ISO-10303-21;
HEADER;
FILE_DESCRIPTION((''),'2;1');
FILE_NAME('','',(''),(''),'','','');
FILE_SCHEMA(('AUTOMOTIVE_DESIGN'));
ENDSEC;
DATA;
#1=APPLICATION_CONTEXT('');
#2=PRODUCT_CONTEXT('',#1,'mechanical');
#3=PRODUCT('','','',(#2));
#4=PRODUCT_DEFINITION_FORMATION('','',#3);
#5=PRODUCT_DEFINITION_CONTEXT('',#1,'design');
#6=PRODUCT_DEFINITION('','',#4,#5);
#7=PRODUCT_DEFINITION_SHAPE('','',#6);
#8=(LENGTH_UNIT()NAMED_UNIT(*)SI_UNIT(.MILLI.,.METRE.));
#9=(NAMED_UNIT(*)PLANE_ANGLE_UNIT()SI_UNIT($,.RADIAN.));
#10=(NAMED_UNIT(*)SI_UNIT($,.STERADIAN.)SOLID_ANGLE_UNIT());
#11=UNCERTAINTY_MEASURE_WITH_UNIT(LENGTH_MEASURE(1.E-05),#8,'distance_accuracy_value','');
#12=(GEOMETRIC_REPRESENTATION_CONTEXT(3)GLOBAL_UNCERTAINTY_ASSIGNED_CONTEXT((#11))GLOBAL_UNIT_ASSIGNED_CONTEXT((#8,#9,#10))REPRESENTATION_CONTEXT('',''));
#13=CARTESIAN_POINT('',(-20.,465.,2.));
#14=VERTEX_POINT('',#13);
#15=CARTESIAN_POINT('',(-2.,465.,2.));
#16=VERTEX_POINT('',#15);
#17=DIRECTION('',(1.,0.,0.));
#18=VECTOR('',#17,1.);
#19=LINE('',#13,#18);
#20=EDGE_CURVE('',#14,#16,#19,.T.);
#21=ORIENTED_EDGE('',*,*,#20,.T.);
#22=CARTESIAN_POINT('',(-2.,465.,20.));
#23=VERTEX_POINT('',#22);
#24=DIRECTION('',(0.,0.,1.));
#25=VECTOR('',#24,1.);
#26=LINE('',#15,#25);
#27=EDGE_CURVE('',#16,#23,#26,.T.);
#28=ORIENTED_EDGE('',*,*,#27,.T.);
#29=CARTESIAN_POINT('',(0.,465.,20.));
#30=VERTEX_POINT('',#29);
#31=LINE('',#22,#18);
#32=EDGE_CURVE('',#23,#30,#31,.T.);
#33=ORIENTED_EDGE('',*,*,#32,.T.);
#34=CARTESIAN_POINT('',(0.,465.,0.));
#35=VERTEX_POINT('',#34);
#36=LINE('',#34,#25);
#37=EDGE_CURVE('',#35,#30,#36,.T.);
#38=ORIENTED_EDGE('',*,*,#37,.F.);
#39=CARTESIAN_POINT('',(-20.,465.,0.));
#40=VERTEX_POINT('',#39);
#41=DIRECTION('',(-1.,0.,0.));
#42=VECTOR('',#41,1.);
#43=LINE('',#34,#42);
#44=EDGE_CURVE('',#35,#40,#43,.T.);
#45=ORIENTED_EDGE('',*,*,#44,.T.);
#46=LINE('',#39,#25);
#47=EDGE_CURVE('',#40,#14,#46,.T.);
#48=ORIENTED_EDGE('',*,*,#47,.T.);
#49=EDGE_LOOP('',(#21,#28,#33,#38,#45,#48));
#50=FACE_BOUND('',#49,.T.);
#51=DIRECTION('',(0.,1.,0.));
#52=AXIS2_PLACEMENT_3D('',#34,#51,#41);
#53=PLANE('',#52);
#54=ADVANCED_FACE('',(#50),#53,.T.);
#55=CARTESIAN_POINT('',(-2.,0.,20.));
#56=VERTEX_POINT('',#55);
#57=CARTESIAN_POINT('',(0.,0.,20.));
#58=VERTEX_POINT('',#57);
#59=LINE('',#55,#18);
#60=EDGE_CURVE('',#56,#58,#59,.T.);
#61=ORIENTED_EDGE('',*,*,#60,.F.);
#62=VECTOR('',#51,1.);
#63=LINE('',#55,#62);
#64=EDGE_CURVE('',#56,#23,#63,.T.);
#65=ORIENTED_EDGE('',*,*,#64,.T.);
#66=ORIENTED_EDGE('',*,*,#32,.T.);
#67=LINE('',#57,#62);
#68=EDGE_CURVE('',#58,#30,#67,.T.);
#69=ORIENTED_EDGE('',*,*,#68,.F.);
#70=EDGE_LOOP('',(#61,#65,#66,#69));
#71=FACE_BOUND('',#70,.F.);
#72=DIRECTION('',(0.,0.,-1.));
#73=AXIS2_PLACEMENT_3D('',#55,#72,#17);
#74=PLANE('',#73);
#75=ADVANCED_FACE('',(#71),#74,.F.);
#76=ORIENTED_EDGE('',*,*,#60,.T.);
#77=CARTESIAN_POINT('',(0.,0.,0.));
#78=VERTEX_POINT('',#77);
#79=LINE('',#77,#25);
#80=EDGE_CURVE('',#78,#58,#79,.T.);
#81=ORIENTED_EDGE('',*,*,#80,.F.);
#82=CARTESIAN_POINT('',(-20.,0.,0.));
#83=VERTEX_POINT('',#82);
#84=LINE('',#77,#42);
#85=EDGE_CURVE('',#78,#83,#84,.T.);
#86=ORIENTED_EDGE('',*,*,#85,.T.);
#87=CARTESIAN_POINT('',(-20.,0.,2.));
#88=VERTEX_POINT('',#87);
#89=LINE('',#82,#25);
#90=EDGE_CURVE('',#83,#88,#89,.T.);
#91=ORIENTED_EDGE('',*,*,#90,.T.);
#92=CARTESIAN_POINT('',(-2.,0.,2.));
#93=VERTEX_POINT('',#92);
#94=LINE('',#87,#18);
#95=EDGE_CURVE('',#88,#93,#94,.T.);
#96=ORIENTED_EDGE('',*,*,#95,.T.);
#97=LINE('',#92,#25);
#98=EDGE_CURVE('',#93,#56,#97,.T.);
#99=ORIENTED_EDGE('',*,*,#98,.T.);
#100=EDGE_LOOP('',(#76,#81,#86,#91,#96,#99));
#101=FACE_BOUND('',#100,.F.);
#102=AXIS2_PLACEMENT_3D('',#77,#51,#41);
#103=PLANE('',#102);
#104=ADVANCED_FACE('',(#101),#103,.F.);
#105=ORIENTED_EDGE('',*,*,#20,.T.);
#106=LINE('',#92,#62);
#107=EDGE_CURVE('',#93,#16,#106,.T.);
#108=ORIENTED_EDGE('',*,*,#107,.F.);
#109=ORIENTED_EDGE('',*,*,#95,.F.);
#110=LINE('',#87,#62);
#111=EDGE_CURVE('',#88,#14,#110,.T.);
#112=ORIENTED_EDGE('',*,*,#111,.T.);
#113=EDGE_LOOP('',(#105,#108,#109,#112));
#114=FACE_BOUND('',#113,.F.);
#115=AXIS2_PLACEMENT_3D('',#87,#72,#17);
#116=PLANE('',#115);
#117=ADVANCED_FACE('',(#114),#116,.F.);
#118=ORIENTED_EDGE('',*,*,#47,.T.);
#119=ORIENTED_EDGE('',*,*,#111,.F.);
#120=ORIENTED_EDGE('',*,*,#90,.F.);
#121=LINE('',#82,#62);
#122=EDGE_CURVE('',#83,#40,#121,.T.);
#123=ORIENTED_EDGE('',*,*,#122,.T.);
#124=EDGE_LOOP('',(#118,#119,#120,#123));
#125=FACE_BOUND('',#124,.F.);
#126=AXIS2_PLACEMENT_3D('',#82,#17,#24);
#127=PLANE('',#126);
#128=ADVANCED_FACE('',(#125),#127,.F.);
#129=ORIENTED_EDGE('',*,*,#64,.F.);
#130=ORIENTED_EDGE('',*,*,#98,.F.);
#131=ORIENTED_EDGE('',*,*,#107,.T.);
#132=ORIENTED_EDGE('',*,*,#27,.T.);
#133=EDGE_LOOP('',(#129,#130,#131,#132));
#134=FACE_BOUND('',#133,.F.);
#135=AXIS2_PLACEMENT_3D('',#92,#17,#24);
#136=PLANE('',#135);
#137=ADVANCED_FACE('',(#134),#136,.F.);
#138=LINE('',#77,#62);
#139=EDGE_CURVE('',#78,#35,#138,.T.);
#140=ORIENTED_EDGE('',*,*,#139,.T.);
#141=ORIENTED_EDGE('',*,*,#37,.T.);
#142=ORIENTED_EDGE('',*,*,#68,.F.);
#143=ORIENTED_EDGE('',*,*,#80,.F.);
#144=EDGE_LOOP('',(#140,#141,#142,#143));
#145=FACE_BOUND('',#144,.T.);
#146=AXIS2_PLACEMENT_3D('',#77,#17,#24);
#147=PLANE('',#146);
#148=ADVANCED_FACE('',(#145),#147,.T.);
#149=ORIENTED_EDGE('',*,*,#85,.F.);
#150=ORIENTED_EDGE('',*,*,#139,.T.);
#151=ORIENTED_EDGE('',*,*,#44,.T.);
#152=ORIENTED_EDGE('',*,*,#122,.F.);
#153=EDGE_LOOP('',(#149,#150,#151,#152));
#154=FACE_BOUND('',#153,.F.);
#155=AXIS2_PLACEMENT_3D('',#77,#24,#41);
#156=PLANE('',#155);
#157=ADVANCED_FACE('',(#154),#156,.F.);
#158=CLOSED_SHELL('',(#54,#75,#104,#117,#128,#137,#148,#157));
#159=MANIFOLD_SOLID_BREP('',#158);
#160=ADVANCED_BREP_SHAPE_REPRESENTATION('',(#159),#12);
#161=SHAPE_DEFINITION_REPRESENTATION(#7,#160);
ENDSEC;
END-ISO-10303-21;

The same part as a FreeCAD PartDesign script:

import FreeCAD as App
import Part
import Sketcher

V = App.Vector

doc = App.newDocument("Part")
body = doc.addObject("PartDesign::Body", "Body")

# Sketch on XZ plane
sketch1 = body.newObject("Sketcher::SketchObject", "Sketch")
sketch1.AttachmentSupport = (doc.getObject("XZ_Plane"), [""])
sketch1.MapMode = "FlatFace"
sketch1.addGeometry([
    Part.LineSegment(V(0, 20, 0), V(0, 0, 0)),  # 0
    Part.LineSegment(V(0, 0, 0), V(-20, 0, 0)),  # 1
    Part.LineSegment(V(-20, 0, 0), V(-20, 2, 0)),  # 2
    Part.LineSegment(V(-20, 2, 0), V(-2, 2, 0)),  # 3
    Part.LineSegment(V(-2, 2, 0), V(-2, 20, 0)),  # 4
    Part.LineSegment(V(-2, 20, 0), V(0, 20, 0)),  # 5
], False)
sketch1.addConstraint([
    Sketcher.Constraint("Coincident", 0, 2, 1, 1),
    Sketcher.Constraint("Coincident", 1, 2, 2, 1),
    Sketcher.Constraint("Coincident", 2, 2, 3, 1),
    Sketcher.Constraint("Coincident", 3, 2, 4, 1),
    Sketcher.Constraint("Coincident", 4, 2, 5, 1),
    Sketcher.Constraint("Coincident", 5, 2, 0, 1),
    Sketcher.Constraint("Vertical", 0),
    Sketcher.Constraint("Horizontal", 1),
    Sketcher.Constraint("Vertical", 2),
    Sketcher.Constraint("Horizontal", 3),
    Sketcher.Constraint("Vertical", 4),
    Sketcher.Constraint("Horizontal", 5),
    Sketcher.Constraint("Coincident", 0, 2, -1, 1),
    Sketcher.Constraint("Equal", 1, 0),
    Sketcher.Constraint("Equal", 5, 2),
    Sketcher.Constraint("DistanceX", 1, 2, 1, 1, 20.0),
    Sketcher.Constraint("DistanceX", 5, 1, 5, 2, 2.0),
])
pad1 = body.newObject("PartDesign::Pad", "Pad")
pad1.Profile = sketch1
pad1.Length = 465
pad1.Reversed = True

doc.recompute()
